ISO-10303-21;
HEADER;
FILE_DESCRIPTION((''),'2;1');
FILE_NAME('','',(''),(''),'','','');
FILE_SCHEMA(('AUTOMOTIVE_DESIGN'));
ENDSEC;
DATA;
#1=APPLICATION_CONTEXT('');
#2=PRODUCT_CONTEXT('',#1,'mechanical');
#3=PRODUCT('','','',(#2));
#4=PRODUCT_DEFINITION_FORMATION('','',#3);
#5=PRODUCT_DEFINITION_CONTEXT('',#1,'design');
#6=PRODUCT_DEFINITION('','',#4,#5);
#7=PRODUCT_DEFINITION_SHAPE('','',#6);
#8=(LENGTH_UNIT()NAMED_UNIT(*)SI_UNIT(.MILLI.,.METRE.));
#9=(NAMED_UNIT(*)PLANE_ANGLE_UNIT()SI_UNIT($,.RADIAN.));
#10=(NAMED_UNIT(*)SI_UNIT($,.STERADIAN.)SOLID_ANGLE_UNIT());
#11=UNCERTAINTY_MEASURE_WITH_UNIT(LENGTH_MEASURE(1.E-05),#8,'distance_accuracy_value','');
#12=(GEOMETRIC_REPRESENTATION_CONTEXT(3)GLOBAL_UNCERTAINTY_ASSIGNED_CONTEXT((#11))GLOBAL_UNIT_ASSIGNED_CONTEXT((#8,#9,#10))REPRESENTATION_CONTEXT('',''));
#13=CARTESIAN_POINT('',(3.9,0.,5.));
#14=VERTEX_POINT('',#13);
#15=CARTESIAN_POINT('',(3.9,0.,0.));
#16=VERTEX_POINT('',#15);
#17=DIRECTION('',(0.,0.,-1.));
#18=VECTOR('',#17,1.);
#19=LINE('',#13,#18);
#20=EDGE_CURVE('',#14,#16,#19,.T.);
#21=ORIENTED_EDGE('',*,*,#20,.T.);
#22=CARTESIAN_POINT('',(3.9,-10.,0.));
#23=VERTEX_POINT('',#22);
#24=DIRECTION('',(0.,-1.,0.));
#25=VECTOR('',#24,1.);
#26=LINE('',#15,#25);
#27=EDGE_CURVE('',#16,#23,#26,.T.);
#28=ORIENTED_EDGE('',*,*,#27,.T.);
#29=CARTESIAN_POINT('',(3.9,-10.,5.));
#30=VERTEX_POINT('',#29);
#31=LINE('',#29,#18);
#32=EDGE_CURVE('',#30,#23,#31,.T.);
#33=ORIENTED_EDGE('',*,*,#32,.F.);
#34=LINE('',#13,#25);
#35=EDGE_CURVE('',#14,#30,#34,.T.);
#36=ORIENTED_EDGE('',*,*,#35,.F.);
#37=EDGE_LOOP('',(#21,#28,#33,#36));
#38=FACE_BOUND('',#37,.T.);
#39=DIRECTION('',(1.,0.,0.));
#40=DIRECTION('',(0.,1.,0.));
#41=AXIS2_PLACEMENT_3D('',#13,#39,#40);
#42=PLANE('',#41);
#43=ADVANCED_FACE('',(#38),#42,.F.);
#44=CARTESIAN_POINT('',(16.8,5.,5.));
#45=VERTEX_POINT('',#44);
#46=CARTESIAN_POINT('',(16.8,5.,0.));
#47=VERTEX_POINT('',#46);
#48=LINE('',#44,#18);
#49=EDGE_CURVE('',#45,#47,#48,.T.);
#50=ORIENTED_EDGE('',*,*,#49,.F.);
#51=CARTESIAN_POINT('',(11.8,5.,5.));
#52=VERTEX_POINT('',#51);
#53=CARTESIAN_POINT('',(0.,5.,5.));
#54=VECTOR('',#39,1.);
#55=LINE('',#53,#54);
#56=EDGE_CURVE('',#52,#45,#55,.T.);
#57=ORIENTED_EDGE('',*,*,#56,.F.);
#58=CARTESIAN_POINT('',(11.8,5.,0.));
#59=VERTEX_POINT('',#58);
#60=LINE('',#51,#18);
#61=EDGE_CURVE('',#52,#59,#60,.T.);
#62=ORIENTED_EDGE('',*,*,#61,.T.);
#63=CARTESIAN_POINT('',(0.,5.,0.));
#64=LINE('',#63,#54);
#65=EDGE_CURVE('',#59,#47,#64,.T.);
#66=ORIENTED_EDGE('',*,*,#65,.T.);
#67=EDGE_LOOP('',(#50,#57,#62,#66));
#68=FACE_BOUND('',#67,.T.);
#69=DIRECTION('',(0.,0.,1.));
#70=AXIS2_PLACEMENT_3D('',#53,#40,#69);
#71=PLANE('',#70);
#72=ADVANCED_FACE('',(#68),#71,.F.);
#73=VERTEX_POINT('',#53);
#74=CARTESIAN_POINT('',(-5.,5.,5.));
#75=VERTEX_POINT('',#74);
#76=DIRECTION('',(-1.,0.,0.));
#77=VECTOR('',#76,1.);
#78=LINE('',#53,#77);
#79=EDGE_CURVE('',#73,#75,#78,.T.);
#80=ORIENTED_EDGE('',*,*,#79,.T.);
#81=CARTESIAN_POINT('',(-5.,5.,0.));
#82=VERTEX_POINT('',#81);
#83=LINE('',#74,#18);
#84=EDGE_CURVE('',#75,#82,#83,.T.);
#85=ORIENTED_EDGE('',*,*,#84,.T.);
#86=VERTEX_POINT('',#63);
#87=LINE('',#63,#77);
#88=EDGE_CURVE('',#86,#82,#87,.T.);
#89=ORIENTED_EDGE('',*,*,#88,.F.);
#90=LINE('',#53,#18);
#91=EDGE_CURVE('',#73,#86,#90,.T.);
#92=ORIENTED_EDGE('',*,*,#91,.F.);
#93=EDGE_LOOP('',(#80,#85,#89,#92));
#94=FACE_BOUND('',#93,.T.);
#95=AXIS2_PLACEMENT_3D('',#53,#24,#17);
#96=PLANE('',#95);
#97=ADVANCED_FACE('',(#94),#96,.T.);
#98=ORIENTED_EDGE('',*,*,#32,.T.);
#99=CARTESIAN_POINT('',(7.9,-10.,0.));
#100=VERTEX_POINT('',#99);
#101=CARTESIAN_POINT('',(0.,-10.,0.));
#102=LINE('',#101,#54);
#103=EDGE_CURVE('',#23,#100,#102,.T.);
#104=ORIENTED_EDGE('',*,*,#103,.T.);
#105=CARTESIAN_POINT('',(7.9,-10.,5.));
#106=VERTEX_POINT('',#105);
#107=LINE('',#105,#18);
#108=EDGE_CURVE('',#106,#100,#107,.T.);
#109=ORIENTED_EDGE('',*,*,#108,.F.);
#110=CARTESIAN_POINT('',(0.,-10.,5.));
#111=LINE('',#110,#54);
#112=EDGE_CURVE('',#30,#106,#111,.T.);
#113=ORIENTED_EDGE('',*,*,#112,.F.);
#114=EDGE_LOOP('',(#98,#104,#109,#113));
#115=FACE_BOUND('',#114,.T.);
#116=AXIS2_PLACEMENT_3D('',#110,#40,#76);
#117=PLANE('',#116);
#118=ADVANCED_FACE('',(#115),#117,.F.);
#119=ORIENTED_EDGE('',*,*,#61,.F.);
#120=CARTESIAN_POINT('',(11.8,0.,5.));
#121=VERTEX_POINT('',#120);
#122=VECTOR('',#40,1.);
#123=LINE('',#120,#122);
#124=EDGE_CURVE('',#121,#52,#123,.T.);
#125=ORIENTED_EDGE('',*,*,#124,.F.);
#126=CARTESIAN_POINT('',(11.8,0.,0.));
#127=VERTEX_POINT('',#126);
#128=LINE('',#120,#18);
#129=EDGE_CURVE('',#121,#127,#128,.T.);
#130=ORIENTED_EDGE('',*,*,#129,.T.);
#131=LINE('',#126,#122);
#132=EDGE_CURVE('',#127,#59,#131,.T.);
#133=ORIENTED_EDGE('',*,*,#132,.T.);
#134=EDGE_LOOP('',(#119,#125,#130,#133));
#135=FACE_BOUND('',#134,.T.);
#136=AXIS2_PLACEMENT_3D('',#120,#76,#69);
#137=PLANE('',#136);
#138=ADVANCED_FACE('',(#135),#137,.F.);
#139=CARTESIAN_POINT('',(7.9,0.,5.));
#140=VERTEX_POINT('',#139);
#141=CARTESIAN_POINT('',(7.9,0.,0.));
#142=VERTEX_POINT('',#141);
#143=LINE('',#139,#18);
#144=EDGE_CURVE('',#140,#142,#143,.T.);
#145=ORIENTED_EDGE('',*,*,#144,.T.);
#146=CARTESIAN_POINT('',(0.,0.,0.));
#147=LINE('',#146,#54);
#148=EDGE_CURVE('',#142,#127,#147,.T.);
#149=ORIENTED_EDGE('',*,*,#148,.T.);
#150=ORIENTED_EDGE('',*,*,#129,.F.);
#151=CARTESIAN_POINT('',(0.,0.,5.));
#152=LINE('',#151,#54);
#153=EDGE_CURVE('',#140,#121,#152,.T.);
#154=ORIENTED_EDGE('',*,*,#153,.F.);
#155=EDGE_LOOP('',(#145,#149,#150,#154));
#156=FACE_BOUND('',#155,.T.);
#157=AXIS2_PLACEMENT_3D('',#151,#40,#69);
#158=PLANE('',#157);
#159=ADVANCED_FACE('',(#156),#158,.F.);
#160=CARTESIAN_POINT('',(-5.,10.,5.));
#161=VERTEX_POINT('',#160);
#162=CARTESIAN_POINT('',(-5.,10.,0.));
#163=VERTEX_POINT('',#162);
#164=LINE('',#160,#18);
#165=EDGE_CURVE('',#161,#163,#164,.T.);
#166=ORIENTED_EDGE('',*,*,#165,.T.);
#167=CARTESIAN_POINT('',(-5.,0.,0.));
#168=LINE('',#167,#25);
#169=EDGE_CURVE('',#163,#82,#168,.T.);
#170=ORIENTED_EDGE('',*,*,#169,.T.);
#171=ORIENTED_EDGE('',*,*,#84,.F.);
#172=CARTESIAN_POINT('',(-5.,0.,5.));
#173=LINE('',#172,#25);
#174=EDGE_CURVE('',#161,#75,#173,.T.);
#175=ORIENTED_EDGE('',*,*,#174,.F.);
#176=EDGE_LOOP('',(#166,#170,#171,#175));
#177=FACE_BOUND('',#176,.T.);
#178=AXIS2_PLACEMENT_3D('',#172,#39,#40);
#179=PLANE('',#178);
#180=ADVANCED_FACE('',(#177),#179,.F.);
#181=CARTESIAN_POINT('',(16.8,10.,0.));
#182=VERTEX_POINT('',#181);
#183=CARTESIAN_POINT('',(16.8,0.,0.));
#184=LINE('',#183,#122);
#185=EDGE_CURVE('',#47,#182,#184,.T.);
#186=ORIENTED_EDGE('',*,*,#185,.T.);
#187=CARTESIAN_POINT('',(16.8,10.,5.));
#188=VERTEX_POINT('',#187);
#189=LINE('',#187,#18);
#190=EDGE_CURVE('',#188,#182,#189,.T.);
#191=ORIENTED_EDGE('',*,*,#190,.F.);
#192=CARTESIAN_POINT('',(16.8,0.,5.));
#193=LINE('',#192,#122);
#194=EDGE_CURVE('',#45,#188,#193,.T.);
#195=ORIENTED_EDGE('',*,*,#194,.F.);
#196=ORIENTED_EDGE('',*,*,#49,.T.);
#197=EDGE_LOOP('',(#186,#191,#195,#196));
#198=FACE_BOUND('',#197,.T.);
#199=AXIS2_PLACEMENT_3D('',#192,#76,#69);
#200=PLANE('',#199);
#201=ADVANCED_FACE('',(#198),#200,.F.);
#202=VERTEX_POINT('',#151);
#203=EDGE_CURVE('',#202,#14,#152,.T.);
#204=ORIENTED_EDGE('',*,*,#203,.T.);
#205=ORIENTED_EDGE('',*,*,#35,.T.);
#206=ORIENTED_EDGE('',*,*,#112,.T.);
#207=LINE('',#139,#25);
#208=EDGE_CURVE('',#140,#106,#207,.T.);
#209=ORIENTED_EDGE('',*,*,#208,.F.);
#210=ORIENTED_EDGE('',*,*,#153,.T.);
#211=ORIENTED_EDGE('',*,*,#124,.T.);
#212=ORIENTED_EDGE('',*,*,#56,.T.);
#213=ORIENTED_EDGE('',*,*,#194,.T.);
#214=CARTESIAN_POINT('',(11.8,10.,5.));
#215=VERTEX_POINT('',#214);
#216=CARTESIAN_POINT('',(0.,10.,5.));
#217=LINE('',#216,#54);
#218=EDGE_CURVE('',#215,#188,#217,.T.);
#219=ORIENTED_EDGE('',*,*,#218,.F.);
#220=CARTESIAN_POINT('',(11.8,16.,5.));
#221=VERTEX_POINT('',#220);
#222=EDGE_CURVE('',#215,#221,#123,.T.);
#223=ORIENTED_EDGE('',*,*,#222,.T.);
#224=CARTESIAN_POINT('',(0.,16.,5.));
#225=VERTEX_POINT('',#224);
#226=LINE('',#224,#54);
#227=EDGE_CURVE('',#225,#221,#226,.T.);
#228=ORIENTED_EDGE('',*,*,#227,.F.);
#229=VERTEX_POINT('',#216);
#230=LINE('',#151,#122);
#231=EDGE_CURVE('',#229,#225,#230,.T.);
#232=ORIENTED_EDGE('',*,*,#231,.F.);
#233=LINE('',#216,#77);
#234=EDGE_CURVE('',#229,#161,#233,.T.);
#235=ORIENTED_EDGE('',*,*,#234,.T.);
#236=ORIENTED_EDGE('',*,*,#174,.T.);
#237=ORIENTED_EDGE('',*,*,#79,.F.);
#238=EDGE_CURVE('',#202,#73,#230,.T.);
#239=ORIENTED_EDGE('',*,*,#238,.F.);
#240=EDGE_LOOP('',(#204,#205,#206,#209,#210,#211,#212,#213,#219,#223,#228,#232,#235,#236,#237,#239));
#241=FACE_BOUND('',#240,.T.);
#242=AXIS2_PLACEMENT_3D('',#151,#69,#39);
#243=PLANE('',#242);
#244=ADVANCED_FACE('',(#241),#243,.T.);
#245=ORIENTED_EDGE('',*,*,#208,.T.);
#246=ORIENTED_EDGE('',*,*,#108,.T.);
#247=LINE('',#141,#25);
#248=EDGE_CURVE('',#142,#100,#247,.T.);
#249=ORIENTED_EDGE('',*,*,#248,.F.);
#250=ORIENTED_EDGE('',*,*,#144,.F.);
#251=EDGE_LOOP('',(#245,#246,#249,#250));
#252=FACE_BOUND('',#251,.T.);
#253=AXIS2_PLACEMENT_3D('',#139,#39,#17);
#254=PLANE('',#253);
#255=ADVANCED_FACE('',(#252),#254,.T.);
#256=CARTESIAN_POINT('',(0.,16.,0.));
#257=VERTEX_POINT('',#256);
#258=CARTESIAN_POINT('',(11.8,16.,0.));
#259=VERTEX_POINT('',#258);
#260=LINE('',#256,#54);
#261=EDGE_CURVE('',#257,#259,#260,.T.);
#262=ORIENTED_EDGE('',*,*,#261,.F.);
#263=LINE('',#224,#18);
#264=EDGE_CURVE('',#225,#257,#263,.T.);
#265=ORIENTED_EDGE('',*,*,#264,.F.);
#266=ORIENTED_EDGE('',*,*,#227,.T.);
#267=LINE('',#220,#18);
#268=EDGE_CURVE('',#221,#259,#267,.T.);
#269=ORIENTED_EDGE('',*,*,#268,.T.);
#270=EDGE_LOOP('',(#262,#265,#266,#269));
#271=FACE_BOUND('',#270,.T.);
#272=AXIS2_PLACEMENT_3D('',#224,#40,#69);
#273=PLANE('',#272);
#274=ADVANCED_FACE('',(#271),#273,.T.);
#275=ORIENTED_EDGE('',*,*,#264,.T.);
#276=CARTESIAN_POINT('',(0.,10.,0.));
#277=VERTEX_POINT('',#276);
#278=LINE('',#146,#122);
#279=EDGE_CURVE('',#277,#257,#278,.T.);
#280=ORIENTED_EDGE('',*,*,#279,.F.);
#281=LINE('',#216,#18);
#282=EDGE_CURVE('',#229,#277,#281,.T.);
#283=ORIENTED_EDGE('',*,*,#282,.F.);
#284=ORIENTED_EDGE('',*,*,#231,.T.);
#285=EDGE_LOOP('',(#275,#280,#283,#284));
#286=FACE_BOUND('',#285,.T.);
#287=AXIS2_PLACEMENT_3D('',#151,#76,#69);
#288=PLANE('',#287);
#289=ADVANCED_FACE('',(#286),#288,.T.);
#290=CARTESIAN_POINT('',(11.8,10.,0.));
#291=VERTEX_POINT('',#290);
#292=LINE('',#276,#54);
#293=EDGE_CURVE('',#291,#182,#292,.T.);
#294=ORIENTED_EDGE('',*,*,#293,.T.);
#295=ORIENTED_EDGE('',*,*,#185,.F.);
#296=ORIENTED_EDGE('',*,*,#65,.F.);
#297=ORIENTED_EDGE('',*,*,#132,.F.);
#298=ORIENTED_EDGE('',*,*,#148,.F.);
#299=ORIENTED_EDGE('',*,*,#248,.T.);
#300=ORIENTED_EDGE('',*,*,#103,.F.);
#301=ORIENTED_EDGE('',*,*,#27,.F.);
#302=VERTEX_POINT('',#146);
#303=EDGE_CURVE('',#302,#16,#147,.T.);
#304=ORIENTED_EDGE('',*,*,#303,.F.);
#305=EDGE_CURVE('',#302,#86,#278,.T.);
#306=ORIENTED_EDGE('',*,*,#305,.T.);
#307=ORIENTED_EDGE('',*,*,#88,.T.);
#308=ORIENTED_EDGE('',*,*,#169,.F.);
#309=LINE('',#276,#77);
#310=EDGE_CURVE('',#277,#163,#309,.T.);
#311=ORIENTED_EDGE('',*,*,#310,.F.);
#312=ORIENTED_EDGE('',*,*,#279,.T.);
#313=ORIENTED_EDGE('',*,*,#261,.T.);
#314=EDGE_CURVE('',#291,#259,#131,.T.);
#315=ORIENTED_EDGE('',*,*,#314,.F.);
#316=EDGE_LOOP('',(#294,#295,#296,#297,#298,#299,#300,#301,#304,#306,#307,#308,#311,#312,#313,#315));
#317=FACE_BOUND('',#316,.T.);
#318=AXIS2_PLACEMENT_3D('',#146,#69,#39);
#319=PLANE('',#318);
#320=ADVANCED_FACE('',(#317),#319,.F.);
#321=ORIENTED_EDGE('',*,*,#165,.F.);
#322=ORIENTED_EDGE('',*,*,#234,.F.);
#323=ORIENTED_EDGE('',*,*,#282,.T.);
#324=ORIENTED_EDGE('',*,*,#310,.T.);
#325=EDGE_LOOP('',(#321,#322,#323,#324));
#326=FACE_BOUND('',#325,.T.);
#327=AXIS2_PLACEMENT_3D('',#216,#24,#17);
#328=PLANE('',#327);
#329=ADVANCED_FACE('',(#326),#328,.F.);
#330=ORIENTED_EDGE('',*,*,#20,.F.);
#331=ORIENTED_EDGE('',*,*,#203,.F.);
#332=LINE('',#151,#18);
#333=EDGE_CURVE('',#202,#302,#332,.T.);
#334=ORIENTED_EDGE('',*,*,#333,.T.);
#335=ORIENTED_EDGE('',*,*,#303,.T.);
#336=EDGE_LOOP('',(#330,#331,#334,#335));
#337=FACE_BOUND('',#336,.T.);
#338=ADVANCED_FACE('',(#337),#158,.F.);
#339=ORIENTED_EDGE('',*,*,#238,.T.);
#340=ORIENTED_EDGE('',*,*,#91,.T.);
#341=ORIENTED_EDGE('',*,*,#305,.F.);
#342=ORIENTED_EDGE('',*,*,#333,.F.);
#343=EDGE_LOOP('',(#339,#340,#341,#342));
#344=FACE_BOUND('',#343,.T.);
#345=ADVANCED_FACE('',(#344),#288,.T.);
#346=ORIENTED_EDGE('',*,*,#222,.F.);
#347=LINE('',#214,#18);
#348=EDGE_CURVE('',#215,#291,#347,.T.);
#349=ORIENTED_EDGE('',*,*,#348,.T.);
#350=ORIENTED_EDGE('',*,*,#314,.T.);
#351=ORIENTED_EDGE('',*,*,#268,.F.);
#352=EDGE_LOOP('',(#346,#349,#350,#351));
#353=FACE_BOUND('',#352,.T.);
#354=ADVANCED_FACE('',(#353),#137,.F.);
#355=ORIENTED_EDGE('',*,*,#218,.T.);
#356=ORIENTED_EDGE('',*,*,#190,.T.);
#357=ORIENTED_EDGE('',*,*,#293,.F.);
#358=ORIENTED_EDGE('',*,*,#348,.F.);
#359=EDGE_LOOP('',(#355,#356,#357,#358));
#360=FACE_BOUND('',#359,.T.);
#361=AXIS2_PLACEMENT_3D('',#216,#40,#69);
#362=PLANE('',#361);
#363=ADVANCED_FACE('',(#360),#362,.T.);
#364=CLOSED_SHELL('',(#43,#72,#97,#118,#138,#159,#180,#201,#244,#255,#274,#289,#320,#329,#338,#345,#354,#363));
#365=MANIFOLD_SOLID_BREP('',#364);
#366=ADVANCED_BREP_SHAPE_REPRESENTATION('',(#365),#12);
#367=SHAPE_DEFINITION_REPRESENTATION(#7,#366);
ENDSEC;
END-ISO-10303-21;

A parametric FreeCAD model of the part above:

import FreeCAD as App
import Part
import Sketcher
from FreeCAD import Vector

doc = App.newDocument("Part")
body = doc.addObject("PartDesign::Body", "Body")

# Sketch on XY plane
sketch1 = doc.addObject("Sketcher::SketchObject", "Sketch")
body.addObject(sketch1)
sketch1.AttachmentSupport = (doc.XY_Plane, [""])
sketch1.MapMode = "FlatFace"
sketch1.addGeometry([
    Part.LineSegment(Vector(3.9, 0, 0), Vector(3.9, -10, 0)),  # 0
    Part.LineSegment(Vector(3.9, -10, 0), Vector(7.9, -10, 0)),  # 1
    Part.LineSegment(Vector(7.9, -10, 0), Vector(7.9, 0, 0)),  # 2
    Part.LineSegment(Vector(7.9, 0, 0), Vector(11.8, 0, 0)),  # 3
    Part.LineSegment(Vector(11.8, 0, 0), Vector(11.8, 5, 0)),  # 4
    Part.LineSegment(Vector(11.8, 5, 0), Vector(16.8, 5, 0)),  # 5
    Part.LineSegment(Vector(16.8, 5, 0), Vector(16.8, 10, 0)),  # 6
    Part.LineSegment(Vector(16.8, 10, 0), Vector(11.8, 10, 0)),  # 7
    Part.LineSegment(Vector(11.8, 10, 0), Vector(11.8, 16, 0)),  # 8
    Part.LineSegment(Vector(11.8, 16, 0), Vector(0, 16, 0)),  # 9
    Part.LineSegment(Vector(0, 16, 0), Vector(0, 10, 0)),  # 10
    Part.LineSegment(Vector(0, 10, 0), Vector(-5, 10, 0)),  # 11
    Part.LineSegment(Vector(-5, 10, 0), Vector(-5, 5, 0)),  # 12
    Part.LineSegment(Vector(-5, 5, 0), Vector(0, 5, 0)),  # 13
    Part.LineSegment(Vector(0, 5, 0), Vector(0, 0, 0)),  # 14
    Part.LineSegment(Vector(0, 0, 0), Vector(3.9, 0, 0)),  # 15
], False)
sketch1.addConstraint([
    Sketcher.Constraint("Coincident", 0, 2, 1, 1),
    Sketcher.Constraint("Coincident", 1, 2, 2, 1),
    Sketcher.Constraint("Coincident", 2, 2, 3, 1),
    Sketcher.Constraint("Coincident", 3, 2, 4, 1),
    Sketcher.Constraint("Coincident", 4, 2, 5, 1),
    Sketcher.Constraint("Coincident", 5, 2, 6, 1),
    Sketcher.Constraint("Coincident", 6, 2, 7, 1),
    Sketcher.Constraint("Coincident", 7, 2, 8, 1),
    Sketcher.Constraint("Coincident", 8, 2, 9, 1),
    Sketcher.Constraint("Coincident", 9, 2, 10, 1),
    Sketcher.Constraint("Coincident", 10, 2, 11, 1),
    Sketcher.Constraint("Coincident", 11, 2, 12, 1),
    Sketcher.Constraint("Coincident", 12, 2, 13, 1),
    Sketcher.Constraint("Coincident", 13, 2, 14, 1),
    Sketcher.Constraint("Coincident", 14, 2, 15, 1),
    Sketcher.Constraint("Coincident", 15, 2, 0, 1),
    Sketcher.Constraint("Vertical", 0),
    Sketcher.Constraint("Horizontal", 1),
    Sketcher.Constraint("Vertical", 2),
    Sketcher.Constraint("Horizontal", 3),
    Sketcher.Constraint("Vertical", 4),
    Sketcher.Constraint("Horizontal", 5),
    Sketcher.Constraint("Vertical", 6),
    Sketcher.Constraint("Horizontal", 7),
    Sketcher.Constraint("Vertical", 8),
    Sketcher.Constraint("Horizontal", 9),
    Sketcher.Constraint("Vertical", 10),
    Sketcher.Constraint("Horizontal", 11),
    Sketcher.Constraint("Vertical", 12),
    Sketcher.Constraint("Horizontal", 13),
    Sketcher.Constraint("Vertical", 14),
    Sketcher.Constraint("Horizontal", 15),
    Sketcher.Constraint("Coincident", 14, 2, -1, 1),
    Sketcher.Constraint("PointOnObject", 2, 2, -1),
    Sketcher.Constraint("PointOnObject", 9, 2, -2),
    Sketcher.Constraint("Horizontal", 7, 2, 10, 2),
    Sketcher.Constraint("Horizontal", 5, 2, 12, 2),
    Sketcher.Constraint("Vertical", 4, 2, 7, 2),
    Sketcher.Constraint("Equal", 7, 11),
    Sketcher.Constraint("Equal", 3, 15),
    Sketcher.Constraint("Equal", 13, 4),
    Sketcher.Constraint("Equal", 4, 6),
    Sketcher.Constraint("DistanceX", 1, 1, 1, 2, 4.0),
    Sketcher.Constraint("DistanceX", 5, 1, 5, 2, 5.0),
    Sketcher.Constraint("DistanceY", 0, 2, 0, 1, 10.0),
    Sketcher.Constraint("DistanceY", 8, 1, 8, 2, 6.0),
    Sketcher.Constraint("DistanceX", 3, 1, 3, 2, 3.9),
])
pad1 = doc.addObject("PartDesign::Pad", "Pad")
body.addObject(pad1)
pad1.Profile = sketch1
pad1.Length = 5

doc.recompute()
